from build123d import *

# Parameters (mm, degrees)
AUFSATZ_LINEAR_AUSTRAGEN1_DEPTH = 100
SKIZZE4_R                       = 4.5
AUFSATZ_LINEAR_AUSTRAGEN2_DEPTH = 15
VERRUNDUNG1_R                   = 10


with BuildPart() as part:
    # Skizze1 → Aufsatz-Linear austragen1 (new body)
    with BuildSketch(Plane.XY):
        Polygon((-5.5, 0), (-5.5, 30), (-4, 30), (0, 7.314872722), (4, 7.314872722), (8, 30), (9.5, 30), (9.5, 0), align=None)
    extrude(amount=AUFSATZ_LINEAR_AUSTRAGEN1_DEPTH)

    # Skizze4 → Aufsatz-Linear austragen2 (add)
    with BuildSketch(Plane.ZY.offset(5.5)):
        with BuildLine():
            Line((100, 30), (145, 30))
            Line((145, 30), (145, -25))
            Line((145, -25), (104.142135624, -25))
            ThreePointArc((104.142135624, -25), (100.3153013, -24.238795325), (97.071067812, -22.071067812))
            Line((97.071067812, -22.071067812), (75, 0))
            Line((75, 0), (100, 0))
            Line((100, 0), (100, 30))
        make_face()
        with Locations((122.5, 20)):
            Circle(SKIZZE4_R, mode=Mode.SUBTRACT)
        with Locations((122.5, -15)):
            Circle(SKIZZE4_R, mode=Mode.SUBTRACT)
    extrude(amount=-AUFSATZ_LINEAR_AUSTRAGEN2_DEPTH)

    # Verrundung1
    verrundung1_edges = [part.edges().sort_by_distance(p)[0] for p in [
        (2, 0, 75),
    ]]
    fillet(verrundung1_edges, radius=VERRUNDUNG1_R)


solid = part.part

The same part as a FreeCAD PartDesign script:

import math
import FreeCAD as App
import Part
import Sketcher
Q = App.Units.Quantity


def edges_at(feature, points):
    """Names of the edges that pass closest to the given points."""
    edges = feature.Shape.Edges
    near = lambda p: min(range(len(edges)), key=lambda i: edges[i].distToShape(Part.Vertex(*p))[0])
    return sorted({f"Edge{near(p) + 1}" for p in points})


def add_polygon(sketch, points):
    """Adds a closed chain of lines whose ends are joined by coincident constraints."""
    first, n = sketch.GeometryCount, len(points)
    for a, b in zip(points, points[1:] + points[:1]):
        sketch.addGeometry(Part.LineSegment(App.Vector(*a, 0), App.Vector(*b, 0)), False)
    for i in range(n):
        sketch.addConstraint(Sketcher.Constraint("Coincident", first + i, 2, first + (i + 1) % n, 1))

doc = App.newDocument("Part")
body = doc.addObject("PartDesign::Body", "Body")

# Sketch on XY plane
sketch1 = doc.addObject("Sketcher::SketchObject", "Sketch")
body.addObject(sketch1)
sketch1.AttachmentSupport = (doc.XY_Plane, [""])
sketch1.MapMode = "FlatFace"
add_polygon(sketch1, [(-5.5, 30), (-5.5, 0), (9.5, 0), (9.5, 30), (8, 30), (4, 7.3), (0, 7.3), (-4, 30)])  # lines 0-7
sketch1.addConstraint(Sketcher.Constraint("Vertical", 0))
sketch1.addConstraint(Sketcher.Constraint("Horizontal", 1))
sketch1.addConstraint(Sketcher.Constraint("Vertical", 2))
sketch1.addConstraint(Sketcher.Constraint("Horizontal", 3))
sketch1.addConstraint(Sketcher.Constraint("Horizontal", 5))
sketch1.addConstraint(Sketcher.Constraint("Horizontal", 7))
sketch1.addConstraint(Sketcher.Constraint("PointOnObject", 0, 2, -1))
sketch1.addConstraint(Sketcher.Constraint("PointOnObject", 5, 2, -2))
sketch1.addConstraint(Sketcher.Constraint("Horizontal", 3, 2, 6, 2))
sketch1.addConstraint(Sketcher.Constraint("Equal", 3, 7))
sketch1.addConstraint(Sketcher.Constraint("Equal", 4, 6))
sketch1.addConstraint(Sketcher.Constraint("DistanceX", 1, 1, 1, 2, 15.0))
sketch1.addConstraint(Sketcher.Constraint("DistanceX", 5, 2, 5, 1, 4.0))
sketch1.addConstraint(Sketcher.Constraint("DistanceY", 0, 2, 0, 1, 30.0))
sketch1.addConstraint(Sketcher.Constraint("Angle", 4, Q("-100 deg")))
sketch1.addConstraint(Sketcher.Constraint("DistanceX", 3, 2, 3, 1, 1.5))
pad1 = doc.addObject("PartDesign::Pad", "Pad")
body.addObject(pad1)
pad1.Profile = sketch1
pad1.Length = 100

# Sketch on YZ plane
sketch2 = doc.addObject("Sketcher::SketchObject", "Sketch001")
body.addObject(sketch2)
sketch2.AttachmentSupport = (doc.YZ_Plane, [""])
sketch2.MapMode = "FlatFace"
sketch2.AttachmentOffset = App.Placement(App.Vector(0, 0, -5.5), App.Rotation())
sketch2.addGeometry(Part.LineSegment(App.Vector(30, 145, 0), App.Vector(30, 100, 0)), False)
sketch2.addGeometry(Part.LineSegment(App.Vector(30, 100, 0), App.Vector(0, 100, 0)), False)
sketch2.addGeometry(Part.LineSegment(App.Vector(0, 100, 0), App.Vector(0, 75, 0)), False)
sketch2.addGeometry(Part.LineSegment(App.Vector(0, 75, 0), App.Vector(-22.1, 97.1, 0)), False)
sketch2.addGeometry(Part.ArcOfCircle(Part.Circle(App.Vector(-15, 104.1, 0), App.Vector(0, 0, 1), 10), math.radians(180), math.radians(225)), False)
sketch2.addGeometry(Part.LineSegment(App.Vector(-25, 104.1, 0), App.Vector(-25, 145, 0)), False)
sketch2.addGeometry(Part.LineSegment(App.Vector(-25, 145, 0), App.Vector(30, 145, 0)), False)
sketch2.addGeometry(Part.Circle(App.Vector(-15, 122.5, 0), App.Vector(0, 0, 1), 4.5), False)
sketch2.addGeometry(Part.Circle(App.Vector(20, 122.5, 0), App.Vector(0, 0, 1), 4.5), False)
sketch2.addConstraint(Sketcher.Constraint("Coincident", 0, 2, 1, 1))
sketch2.addConstraint(Sketcher.Constraint("Coincident", 1, 2, 2, 1))
sketch2.addConstraint(Sketcher.Constraint("Coincident", 2, 2, 3, 1))
sketch2.addConstraint(Sketcher.Constraint("Tangent", 3, 2, 4, 2))
sketch2.addConstraint(Sketcher.Constraint("Tangent", 4, 1, 5, 1))
sketch2.addConstraint(Sketcher.Constraint("Coincident", 5, 2, 6, 1))
sketch2.addConstraint(Sketcher.Constraint("Coincident", 6, 2, 0, 1))
sketch2.addConstraint(Sketcher.Constraint("Vertical", 0))
sketch2.addConstraint(Sketcher.Constraint("Horizontal", 1))
sketch2.addConstraint(Sketcher.Constraint("Vertical", 2))
sketch2.addConstraint(Sketcher.Constraint("Vertical", 5))
sketch2.addConstraint(Sketcher.Constraint("Horizontal", 6))
sketch2.addConstraint(Sketcher.Constraint("Equal", 7, 8))
sketch2.addConstraint(Sketcher.Constraint("PointOnObject", 1, 2, -2))
sketch2.addConstraint(Sketcher.Constraint("Horizontal", 7, 3, 8, 3))
sketch2.addConstraint(Sketcher.Constraint("Vertical", 4, 3, 7, 3))
sketch2.addConstraint(Sketcher.Constraint("Diameter", 7, 9.0))
sketch2.addConstraint(Sketcher.Constraint("Radius", 4, 10.0))
sketch2.addConstraint(Sketcher.Constraint("DistanceX", 1, 2, 1, 1, 30.0))
sketch2.addConstraint(Sketcher.Constraint("DistanceX", 6, 1, 6, 2, 55.0))
sketch2.addConstraint(Sketcher.Constraint("DistanceY", 0, 2, 0, 1, 45.0))
sketch2.addConstraint(Sketcher.Constraint("DistanceY", 2, 2, 2, 1, 25.0))
sketch2.addConstraint(Sketcher.Constraint("Angle", 3, Q("135 deg")))
sketch2.addConstraint(Sketcher.Constraint("DistanceX", -1, 1, 8, 3, 20.0))
sketch2.addConstraint(Sketcher.Constraint("DistanceY", -1, 1, 0, 2, 100.0))
sketch2.addConstraint(Sketcher.Constraint("DistanceY", -1, 1, 7, 3, 122.5))
pad2 = doc.addObject("PartDesign::Pad", "Pad001")
body.addObject(pad2)
pad2.Profile = sketch2
pad2.Length = 15
doc.recompute()

fillet = doc.addObject("PartDesign::Fillet", "Fillet")
body.addObject(fillet)
fillet.Base = (pad2, edges_at(pad2, [(2, 0, 75)]))
fillet.Radius = 10

doc.recompute()
